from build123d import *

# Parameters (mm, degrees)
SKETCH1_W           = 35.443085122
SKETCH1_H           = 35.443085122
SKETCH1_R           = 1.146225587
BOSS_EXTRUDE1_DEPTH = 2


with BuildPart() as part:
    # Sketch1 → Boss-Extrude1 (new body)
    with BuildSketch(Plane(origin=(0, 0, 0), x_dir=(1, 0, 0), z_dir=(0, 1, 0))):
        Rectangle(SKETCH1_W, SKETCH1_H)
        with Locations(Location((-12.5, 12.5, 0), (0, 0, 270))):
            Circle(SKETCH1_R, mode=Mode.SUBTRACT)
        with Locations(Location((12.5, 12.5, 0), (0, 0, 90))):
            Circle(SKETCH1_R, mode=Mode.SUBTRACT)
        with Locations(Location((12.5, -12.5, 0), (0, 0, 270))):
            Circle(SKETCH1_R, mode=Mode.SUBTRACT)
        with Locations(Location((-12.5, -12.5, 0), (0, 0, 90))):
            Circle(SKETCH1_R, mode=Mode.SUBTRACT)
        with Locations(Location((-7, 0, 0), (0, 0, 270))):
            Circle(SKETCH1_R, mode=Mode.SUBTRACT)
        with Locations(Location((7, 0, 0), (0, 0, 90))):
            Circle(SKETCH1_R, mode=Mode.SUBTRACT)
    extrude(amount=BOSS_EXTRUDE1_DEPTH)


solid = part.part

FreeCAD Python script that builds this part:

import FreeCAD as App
import Part
import Sketcher
from FreeCAD import Vector


def add_polygon(sketch, points):
    """Adds a closed chain of lines whose ends are joined by coincident constraints."""
    first, n = sketch.GeometryCount, len(points)
    for a, b in zip(points, points[1:] + points[:1]):
        sketch.addGeometry(Part.LineSegment(App.Vector(*a, 0), App.Vector(*b, 0)), False)
    for i in range(n):
        sketch.addConstraint(Sketcher.Constraint("Coincident", first + i, 2, first + (i + 1) % n, 1))

doc = App.newDocument("Part")
params = doc.addObject("Spreadsheet::Sheet", "Params")
for row, (alias, value) in enumerate([
    ("pad1_length", "2 mm"),
], start=1):
    params.set(f"A{row}", alias)
    params.set(f"B{row}", "=" + value)
    params.setAlias(f"B{row}", alias)

body = doc.addObject("PartDesign::Body", "Body")

# Sketch on XZ plane
sketch1 = body.newObject("Sketcher::SketchObject", "Sketch")
sketch1.AttachmentSupport = (doc.getObject("XZ_Plane"), [""])
sketch1.MapMode = "FlatFace"
add_polygon(sketch1, [(-17.7, -17.7), (-17.7, 17.7), (17.7, 17.7), (17.7, -17.7)])  # lines 0-3
sketch1.addGeometry(Part.Circle(Vector(-12.5, 12.5, 0), Vector(0, 0, 1), 1.1), False)  # 4
sketch1.addGeometry(Part.Circle(Vector(12.5, 12.5, 0), Vector(0, 0, 1), 1.1), False)  # 5
sketch1.addGeometry(Part.Circle(Vector(-7, 0, 0), Vector(0, 0, 1), 1.1), False)  # 6
sketch1.addGeometry(Part.Circle(Vector(-12.5, -12.5, 0), Vector(0, 0, 1), 1.1), False)  # 7
sketch1.addGeometry(Part.Circle(Vector(7, 0, 0), Vector(0, 0, 1), 1.1), False)  # 8
sketch1.addGeometry(Part.Circle(Vector(12.5, -12.5, 0), Vector(0, 0, 1), 1.1), False)  # 9
sketch1.addConstraint([
    Sketcher.Constraint("Vertical", 0),
    Sketcher.Constraint("Horizontal", 1),
    Sketcher.Constraint("Vertical", 2),
    Sketcher.Constraint("Horizontal", 3),
    Sketcher.Constraint("Equal", 4, 5),
    Sketcher.Constraint("Equal", 5, 6),
    Sketcher.Constraint("Equal", 6, 7),
    Sketcher.Constraint("Equal", 7, 8),
    Sketcher.Constraint("Equal", 8, 9),
    Sketcher.Constraint("Symmetric", 5, 3, 7, 3, -1, 1),
    Sketcher.Constraint("Symmetric", 6, 3, 8, 3, -1, 1),
    Sketcher.Constraint("Symmetric", 4, 3, 9, 3, -1, 1),
    Sketcher.Constraint("Symmetric", 0, 2, 2, 2, -1, 1),
    Sketcher.Constraint("Symmetric", 4, 3, 5, 3, -2),
    Sketcher.Constraint("PointOnObject", 6, 3, -1),
    Sketcher.Constraint("Equal", 3, 0),
    Sketcher.Constraint("DistanceX", 6, 3, -1, 1, 7.0),
    Sketcher.Constraint("DistanceX", 4, 3, 5, 3, 25.0),
    Sketcher.Constraint("DistanceY", 7, 3, 4, 3, 25.0),
    Sketcher.Constraint("Diameter", 4, 2.292451),
    Sketcher.Constraint("DistanceX", 1, 1, 1, 2, 35.443085),
])
pad1 = body.newObject("PartDesign::Pad", "Pad")
pad1.Profile = sketch1
pad1.setExpression("Length", "Params.pad1_length")
pad1.Reversed = True

doc.recompute()
